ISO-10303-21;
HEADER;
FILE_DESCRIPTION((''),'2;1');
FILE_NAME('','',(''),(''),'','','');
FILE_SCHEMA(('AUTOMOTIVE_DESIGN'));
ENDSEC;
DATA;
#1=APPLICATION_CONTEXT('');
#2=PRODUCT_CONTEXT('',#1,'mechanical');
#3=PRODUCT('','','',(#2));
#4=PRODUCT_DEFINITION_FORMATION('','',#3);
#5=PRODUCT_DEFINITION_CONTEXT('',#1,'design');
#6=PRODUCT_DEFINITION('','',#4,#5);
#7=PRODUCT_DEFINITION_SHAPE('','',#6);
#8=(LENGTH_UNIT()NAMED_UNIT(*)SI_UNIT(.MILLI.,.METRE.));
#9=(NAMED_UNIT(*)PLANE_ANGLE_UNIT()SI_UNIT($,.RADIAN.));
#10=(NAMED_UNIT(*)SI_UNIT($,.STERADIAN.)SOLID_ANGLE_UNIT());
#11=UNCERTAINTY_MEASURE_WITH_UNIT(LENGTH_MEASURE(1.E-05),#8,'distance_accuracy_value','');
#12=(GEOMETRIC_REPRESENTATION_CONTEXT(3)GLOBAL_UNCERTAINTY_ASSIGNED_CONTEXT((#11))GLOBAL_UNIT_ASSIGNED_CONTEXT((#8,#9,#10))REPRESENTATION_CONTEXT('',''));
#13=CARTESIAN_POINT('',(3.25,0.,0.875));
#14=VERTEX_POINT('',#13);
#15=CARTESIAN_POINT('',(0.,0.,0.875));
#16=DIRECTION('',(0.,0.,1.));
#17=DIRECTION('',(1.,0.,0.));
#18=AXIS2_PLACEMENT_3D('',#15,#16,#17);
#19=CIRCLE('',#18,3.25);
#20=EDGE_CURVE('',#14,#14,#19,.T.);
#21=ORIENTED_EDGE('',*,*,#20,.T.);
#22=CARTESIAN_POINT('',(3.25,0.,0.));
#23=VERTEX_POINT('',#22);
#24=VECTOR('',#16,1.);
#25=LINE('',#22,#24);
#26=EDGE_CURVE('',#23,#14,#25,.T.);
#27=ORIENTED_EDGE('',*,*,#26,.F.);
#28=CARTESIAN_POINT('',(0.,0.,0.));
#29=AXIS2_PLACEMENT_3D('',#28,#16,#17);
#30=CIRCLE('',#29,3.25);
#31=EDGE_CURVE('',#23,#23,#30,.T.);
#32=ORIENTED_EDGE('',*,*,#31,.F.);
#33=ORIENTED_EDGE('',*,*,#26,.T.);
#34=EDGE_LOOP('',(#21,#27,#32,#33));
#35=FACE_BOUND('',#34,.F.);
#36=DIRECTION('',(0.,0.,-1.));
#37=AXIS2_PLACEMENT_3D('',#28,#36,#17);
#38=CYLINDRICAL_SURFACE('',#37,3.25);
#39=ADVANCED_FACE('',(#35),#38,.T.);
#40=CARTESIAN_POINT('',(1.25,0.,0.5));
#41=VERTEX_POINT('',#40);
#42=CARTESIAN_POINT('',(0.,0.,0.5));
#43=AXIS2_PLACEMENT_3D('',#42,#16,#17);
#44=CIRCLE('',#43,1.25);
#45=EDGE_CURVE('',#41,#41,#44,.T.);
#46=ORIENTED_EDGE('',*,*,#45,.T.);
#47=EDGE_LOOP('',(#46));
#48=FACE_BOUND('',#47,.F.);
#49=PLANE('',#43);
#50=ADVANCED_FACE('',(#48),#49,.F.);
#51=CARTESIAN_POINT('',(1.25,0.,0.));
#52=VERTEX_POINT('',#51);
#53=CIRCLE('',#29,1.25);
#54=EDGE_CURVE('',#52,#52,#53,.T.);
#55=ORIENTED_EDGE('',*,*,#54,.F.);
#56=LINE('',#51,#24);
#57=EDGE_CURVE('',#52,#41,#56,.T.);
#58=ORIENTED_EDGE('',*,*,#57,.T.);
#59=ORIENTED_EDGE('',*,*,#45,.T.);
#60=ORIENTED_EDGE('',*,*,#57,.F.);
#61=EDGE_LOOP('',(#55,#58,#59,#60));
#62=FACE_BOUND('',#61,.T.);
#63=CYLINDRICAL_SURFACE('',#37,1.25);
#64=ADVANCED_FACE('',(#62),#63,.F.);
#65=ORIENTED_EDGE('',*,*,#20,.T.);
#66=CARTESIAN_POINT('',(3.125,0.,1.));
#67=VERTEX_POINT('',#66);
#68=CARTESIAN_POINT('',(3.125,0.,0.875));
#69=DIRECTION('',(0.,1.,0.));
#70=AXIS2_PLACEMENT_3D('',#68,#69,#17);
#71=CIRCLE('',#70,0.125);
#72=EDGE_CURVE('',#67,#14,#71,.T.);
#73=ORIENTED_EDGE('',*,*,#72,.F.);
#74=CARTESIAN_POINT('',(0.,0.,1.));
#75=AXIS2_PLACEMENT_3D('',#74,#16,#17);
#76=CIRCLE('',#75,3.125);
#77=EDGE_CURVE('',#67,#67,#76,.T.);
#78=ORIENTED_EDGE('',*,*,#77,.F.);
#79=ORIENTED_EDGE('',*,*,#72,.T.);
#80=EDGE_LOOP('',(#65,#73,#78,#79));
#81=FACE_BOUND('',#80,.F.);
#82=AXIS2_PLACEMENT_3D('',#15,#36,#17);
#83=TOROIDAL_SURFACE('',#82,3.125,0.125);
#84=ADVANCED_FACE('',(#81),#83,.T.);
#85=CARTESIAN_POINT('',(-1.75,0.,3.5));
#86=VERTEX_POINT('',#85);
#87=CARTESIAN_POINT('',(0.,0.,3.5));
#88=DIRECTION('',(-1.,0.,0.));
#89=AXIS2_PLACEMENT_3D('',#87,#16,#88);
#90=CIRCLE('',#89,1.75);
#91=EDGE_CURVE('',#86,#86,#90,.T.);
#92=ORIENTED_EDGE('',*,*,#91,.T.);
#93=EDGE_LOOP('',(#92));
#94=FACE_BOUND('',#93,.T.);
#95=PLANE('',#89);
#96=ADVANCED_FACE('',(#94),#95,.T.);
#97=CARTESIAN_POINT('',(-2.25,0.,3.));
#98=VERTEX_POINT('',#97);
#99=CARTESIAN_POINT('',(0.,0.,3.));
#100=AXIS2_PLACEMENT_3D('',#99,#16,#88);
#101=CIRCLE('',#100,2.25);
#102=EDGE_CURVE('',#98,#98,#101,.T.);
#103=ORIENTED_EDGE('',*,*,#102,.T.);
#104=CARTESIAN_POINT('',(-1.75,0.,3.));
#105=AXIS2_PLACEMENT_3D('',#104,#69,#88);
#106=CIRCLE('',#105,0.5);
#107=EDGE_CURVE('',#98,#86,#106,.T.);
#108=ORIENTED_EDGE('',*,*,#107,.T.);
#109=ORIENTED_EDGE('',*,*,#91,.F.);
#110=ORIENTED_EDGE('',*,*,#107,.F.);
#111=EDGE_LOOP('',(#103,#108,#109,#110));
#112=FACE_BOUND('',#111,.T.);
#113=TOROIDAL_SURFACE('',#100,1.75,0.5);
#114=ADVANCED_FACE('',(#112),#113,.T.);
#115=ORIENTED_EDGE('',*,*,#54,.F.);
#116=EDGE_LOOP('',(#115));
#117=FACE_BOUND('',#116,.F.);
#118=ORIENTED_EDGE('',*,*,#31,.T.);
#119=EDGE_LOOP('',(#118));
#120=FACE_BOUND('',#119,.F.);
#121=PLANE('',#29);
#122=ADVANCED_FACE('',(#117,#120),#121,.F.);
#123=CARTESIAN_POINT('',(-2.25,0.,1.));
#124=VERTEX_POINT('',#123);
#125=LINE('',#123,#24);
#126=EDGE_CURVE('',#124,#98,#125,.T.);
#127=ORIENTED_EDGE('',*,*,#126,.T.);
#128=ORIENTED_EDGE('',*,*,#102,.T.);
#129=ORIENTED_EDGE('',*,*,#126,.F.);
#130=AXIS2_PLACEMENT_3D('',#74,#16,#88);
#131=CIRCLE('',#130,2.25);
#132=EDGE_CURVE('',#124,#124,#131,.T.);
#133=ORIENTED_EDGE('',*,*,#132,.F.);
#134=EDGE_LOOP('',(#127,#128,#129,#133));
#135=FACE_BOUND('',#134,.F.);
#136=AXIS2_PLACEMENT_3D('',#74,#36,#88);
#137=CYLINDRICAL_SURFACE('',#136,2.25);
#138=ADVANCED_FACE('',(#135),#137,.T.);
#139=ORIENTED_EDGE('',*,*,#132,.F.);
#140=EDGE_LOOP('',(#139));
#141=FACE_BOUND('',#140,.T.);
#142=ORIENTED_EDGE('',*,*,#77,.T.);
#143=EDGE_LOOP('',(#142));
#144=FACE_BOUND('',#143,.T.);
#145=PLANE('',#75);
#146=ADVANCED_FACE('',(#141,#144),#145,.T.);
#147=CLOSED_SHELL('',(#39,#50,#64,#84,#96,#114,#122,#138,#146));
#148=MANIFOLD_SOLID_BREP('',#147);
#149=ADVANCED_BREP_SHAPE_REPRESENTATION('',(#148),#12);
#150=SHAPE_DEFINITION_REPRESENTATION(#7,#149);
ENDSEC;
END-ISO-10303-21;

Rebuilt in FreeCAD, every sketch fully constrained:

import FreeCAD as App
import Part
import Sketcher


def edges_at(feature, points):
    """Names of the edges that pass closest to the given points."""
    edges = feature.Shape.Edges
    near = lambda p: min(range(len(edges)), key=lambda i: edges[i].distToShape(Part.Vertex(*p))[0])
    return sorted({f"Edge{near(p) + 1}" for p in points})

doc = App.newDocument("Part")
body = doc.addObject("PartDesign::Body", "Body")

sketch1 = body.newObject("Sketcher::SketchObject", "Sketch")
sketch1.AttachmentSupport = (doc.getObject("XY_Plane"), [""])
sketch1.MapMode = "FlatFace"
sketch1.addGeometry(Part.Circle(App.Vector(0, 0, 0), App.Vector(0, 0, 1), 3.25), False)
sketch1.addConstraint(Sketcher.Constraint("Coincident", 0, 3, -1, 1))
sketch1.addConstraint(Sketcher.Constraint("Diameter", 0, 6.5))
pad1 = body.newObject("PartDesign::Pad", "Pad")
pad1.Profile = sketch1
pad1.Length = 1

sketch2 = body.newObject("Sketcher::SketchObject", "Sketch001")
sketch2.AttachmentSupport = (doc.getObject("XY_Plane"), [""])
sketch2.MapMode = "FlatFace"
sketch2.AttachmentOffset = App.Placement(App.Vector(0, 0, 1), App.Rotation())
sketch2.addGeometry(Part.Circle(App.Vector(0, 0, 0), App.Vector(0, 0, 1), 2.25), False)
sketch2.addConstraint(Sketcher.Constraint("Coincident", 0, 3, -1, 1))
sketch2.addConstraint(Sketcher.Constraint("Diameter", 0, 4.5))
pad2 = body.newObject("PartDesign::Pad", "Pad001")
pad2.Profile = sketch2
pad2.Length = 2.5
doc.recompute()

fillet = body.newObject("PartDesign::Fillet", "Fillet")
fillet.Base = (pad2, edges_at(pad2, [(2.098, 0.814, 3.5)]))
fillet.Radius = 0.5
doc.recompute()

fillet2 = body.newObject("PartDesign::Fillet", "Fillet001")
fillet2.Base = (fillet, edges_at(fillet, [(-3.03, -1.175, 1)]))
fillet2.Radius = 0.125

sketch3 = body.newObject("Sketcher::SketchObject", "Sketch002")
sketch3.AttachmentSupport = (doc.getObject("XY_Plane"), [""])
sketch3.MapMode = "FlatFace"
sketch3.addGeometry(Part.Circle(App.Vector(0, 0, 0), App.Vector(0, 0, 1), 1.25), False)
sketch3.addConstraint(Sketcher.Constraint("Coincident", 0, 3, -1, 1))
sketch3.addConstraint(Sketcher.Constraint("Diameter", 0, 2.5))
pocket1 = body.newObject("PartDesign::Pocket", "Pocket")
pocket1.Profile = sketch3
pocket1.Length = 0.5
pocket1.Reversed = True

doc.recompute()
